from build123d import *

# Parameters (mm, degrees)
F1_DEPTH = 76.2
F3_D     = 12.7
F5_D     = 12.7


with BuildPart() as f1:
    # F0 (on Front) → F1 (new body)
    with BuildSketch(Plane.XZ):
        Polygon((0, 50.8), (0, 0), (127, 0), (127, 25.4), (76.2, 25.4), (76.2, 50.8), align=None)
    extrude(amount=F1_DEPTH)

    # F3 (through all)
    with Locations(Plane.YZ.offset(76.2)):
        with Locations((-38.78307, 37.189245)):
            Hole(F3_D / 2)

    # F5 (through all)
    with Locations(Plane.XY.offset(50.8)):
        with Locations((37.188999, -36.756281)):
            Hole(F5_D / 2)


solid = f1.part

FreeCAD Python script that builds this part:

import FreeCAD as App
import Part
import Sketcher
Q = App.Units.Quantity

doc = App.newDocument("Part")
body = doc.addObject("PartDesign::Body", "Body")

# Sketch on XZ plane
sketch1 = body.newObject("Sketcher::SketchObject", "Sketch")
sketch1.AttachmentSupport = (doc.getObject("XZ_Plane"), [""])
sketch1.MapMode = "FlatFace"
sketch1.addGeometry([
    Part.LineSegment(App.Vector(0, 51, 0), App.Vector(0, 0, 0)),  # 0
    Part.LineSegment(App.Vector(0, 0, 0), App.Vector(127, 0, 0)),  # 1
    Part.LineSegment(App.Vector(127, 0, 0), App.Vector(127, 25, 0)),  # 2
    Part.LineSegment(App.Vector(127, 25, 0), App.Vector(76, 25, 0)),  # 3
    Part.LineSegment(App.Vector(76, 25, 0), App.Vector(76, 51, 0)),  # 4
    Part.LineSegment(App.Vector(76, 51, 0), App.Vector(0, 51, 0)),  # 5
], False)
sketch1.addConstraint([
    Sketcher.Constraint("Coincident", 0, 2, 1, 1),
    Sketcher.Constraint("Coincident", 1, 2, 2, 1),
    Sketcher.Constraint("Coincident", 2, 2, 3, 1),
    Sketcher.Constraint("Coincident", 3, 2, 4, 1),
    Sketcher.Constraint("Coincident", 4, 2, 5, 1),
    Sketcher.Constraint("Coincident", 5, 2, 0, 1),
    Sketcher.Constraint("Vertical", 0),
    Sketcher.Constraint("Horizontal", 1),
    Sketcher.Constraint("Vertical", 2),
    Sketcher.Constraint("Horizontal", 3),
    Sketcher.Constraint("Vertical", 4),
    Sketcher.Constraint("Horizontal", 5),
    Sketcher.Constraint("Coincident", 0, 2, -1, 1),
    Sketcher.Constraint("Equal", 3, 0),
    Sketcher.Constraint("Equal", 2, 4),
    Sketcher.Constraint("DistanceX", 1, 1, 1, 2, Q("5 in")),
    Sketcher.Constraint("DistanceX", 3, 2, 3, 1, Q("2 in")),
])
pad1 = body.newObject("PartDesign::Pad", "Pad")
pad1.Profile = sketch1
pad1.Length = Q("3 in")

# Sketch on YZ plane
sketch2 = body.newObject("Sketcher::SketchObject", "Sketch001")
sketch2.AttachmentSupport = (doc.getObject("YZ_Plane"), [""])
sketch2.MapMode = "FlatFace"
sketch2.AttachmentOffset = App.Placement(App.Vector(0, 0, 3 * 25.4), App.Rotation())
sketch2.addGeometry(Part.Circle(App.Vector(-39, 37, 0), App.Vector(0, 0, 1), 6), False)
sketch2.addConstraint([
    Sketcher.Constraint("Diameter", 0, Q("0.5 in")),
    Sketcher.Constraint("DistanceX", 0, 3, -1, 1, Q("38.78307 mm")),
    Sketcher.Constraint("DistanceY", -1, 1, 0, 3, Q("37.189245 mm")),
])
doc.recompute()
hole = body.newObject("PartDesign::Hole", "Hole")
hole.Profile = sketch2
hole.ThreadType = "None"
hole.Diameter = Q("0.5 in")
hole.DepthType = "ThroughAll"

# Sketch on XY plane
sketch3 = body.newObject("Sketcher::SketchObject", "Sketch002")
sketch3.AttachmentSupport = (doc.getObject("XY_Plane"), [""])
sketch3.MapMode = "FlatFace"
sketch3.AttachmentOffset = App.Placement(App.Vector(0, 0, 2 * 25.4), App.Rotation())
sketch3.addGeometry(Part.Circle(App.Vector(37, -37, 0), App.Vector(0, 0, 1), 6), False)
sketch3.addConstraint([
    Sketcher.Constraint("Diameter", 0, Q("0.5 in")),
    Sketcher.Constraint("DistanceX", -1, 1, 0, 3, Q("37.188999 mm")),
    Sketcher.Constraint("DistanceY", 0, 3, -1, 1, Q("36.756281 mm")),
])
doc.recompute()
hole2 = body.newObject("PartDesign::Hole", "Hole001")
hole2.Profile = sketch3
hole2.ThreadType = "None"
hole2.Diameter = Q("0.5 in")
hole2.DepthType = "ThroughAll"

doc.recompute()
